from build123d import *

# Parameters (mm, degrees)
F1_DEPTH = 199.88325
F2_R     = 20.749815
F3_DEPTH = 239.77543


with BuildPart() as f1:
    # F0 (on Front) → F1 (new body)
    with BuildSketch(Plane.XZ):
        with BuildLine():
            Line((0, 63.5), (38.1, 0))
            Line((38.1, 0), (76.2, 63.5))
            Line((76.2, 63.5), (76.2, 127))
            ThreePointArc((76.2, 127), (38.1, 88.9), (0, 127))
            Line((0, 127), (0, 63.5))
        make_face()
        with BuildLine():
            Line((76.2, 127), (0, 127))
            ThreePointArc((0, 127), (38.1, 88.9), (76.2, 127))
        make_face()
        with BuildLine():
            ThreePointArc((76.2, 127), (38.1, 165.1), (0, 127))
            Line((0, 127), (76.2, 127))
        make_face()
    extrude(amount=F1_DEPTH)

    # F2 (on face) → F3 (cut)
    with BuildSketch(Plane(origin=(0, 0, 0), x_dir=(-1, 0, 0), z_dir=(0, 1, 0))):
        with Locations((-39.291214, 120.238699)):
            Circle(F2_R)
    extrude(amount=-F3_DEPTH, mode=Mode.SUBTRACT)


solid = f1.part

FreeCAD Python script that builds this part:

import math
import FreeCAD as App
import Part
import Sketcher
Q = App.Units.Quantity

doc = App.newDocument("Part")
body = doc.addObject("PartDesign::Body", "Body")

# Sketch on XZ plane
sketch1 = doc.addObject("Sketcher::SketchObject", "Sketch")
body.addObject(sketch1)
sketch1.AttachmentSupport = (doc.XZ_Plane, [""])
sketch1.MapMode = "FlatFace"
sketch1.addGeometry([
    Part.LineSegment(App.Vector(0, 63.5, 0), App.Vector(38.1, 0, 0)),  # 0
    Part.LineSegment(App.Vector(38.1, 0, 0), App.Vector(76.2, 63.5, 0)),  # 1
    Part.LineSegment(App.Vector(76.2, 63.5, 0), App.Vector(76.2, 127, 0)),  # 2
    Part.ArcOfCircle(Part.Circle(App.Vector(38.1, 127, 0), App.Vector(0, 0, 1), 38.1), math.radians(0), math.radians(180)),  # 3
    Part.LineSegment(App.Vector(0, 127, 0), App.Vector(0, 63.5, 0)),  # 4
], False)
sketch1.addConstraint([
    Sketcher.Constraint("Coincident", 0, 2, 1, 1),
    Sketcher.Constraint("Coincident", 1, 2, 2, 1),
    Sketcher.Constraint("Tangent", 2, 2, 3, 1),
    Sketcher.Constraint("Tangent", 3, 2, 4, 1),
    Sketcher.Constraint("Coincident", 4, 2, 0, 1),
    Sketcher.Constraint("Vertical", 2),
    Sketcher.Constraint("Vertical", 4),
    Sketcher.Constraint("PointOnObject", 0, 2, -1),
    Sketcher.Constraint("PointOnObject", 3, 2, -2),
    Sketcher.Constraint("Horizontal", 1, 2, 4, 2),
    Sketcher.Constraint("Vertical", 3, 3, 0, 2),
    Sketcher.Constraint("Radius", 3, Q("1.5 in")),
    Sketcher.Constraint("DistanceY", 2, 1, 2, 2, Q("2.5 in")),
    Sketcher.Constraint("DistanceY", -1, 1, 3, 3, Q("5 in")),
])
pad1 = doc.addObject("PartDesign::Pad", "Pad")
body.addObject(pad1)
pad1.Profile = sketch1
pad1.Length = 199.88325

# Sketch on XZ plane
sketch2 = doc.addObject("Sketcher::SketchObject", "Sketch001")
body.addObject(sketch2)
sketch2.AttachmentSupport = (doc.XZ_Plane, [""])
sketch2.MapMode = "FlatFace"
sketch2.addGeometry(Part.Circle(App.Vector(39.291214, 120.238699, 0), App.Vector(0, 0, 1), 20.749815), False)
sketch2.addConstraint([
    Sketcher.Constraint("Diameter", 0, 41.49963),
    Sketcher.Constraint("DistanceY", -1, 1, 0, 3, 120.238699),
    Sketcher.Constraint("DistanceX", -1, 1, 0, 3, 39.291214),
])
pocket1 = doc.addObject("PartDesign::Pocket", "Pocket")
body.addObject(pocket1)
pocket1.Profile = sketch2
pocket1.Length = 239.77543
pocket1.Reversed = True

doc.recompute()
